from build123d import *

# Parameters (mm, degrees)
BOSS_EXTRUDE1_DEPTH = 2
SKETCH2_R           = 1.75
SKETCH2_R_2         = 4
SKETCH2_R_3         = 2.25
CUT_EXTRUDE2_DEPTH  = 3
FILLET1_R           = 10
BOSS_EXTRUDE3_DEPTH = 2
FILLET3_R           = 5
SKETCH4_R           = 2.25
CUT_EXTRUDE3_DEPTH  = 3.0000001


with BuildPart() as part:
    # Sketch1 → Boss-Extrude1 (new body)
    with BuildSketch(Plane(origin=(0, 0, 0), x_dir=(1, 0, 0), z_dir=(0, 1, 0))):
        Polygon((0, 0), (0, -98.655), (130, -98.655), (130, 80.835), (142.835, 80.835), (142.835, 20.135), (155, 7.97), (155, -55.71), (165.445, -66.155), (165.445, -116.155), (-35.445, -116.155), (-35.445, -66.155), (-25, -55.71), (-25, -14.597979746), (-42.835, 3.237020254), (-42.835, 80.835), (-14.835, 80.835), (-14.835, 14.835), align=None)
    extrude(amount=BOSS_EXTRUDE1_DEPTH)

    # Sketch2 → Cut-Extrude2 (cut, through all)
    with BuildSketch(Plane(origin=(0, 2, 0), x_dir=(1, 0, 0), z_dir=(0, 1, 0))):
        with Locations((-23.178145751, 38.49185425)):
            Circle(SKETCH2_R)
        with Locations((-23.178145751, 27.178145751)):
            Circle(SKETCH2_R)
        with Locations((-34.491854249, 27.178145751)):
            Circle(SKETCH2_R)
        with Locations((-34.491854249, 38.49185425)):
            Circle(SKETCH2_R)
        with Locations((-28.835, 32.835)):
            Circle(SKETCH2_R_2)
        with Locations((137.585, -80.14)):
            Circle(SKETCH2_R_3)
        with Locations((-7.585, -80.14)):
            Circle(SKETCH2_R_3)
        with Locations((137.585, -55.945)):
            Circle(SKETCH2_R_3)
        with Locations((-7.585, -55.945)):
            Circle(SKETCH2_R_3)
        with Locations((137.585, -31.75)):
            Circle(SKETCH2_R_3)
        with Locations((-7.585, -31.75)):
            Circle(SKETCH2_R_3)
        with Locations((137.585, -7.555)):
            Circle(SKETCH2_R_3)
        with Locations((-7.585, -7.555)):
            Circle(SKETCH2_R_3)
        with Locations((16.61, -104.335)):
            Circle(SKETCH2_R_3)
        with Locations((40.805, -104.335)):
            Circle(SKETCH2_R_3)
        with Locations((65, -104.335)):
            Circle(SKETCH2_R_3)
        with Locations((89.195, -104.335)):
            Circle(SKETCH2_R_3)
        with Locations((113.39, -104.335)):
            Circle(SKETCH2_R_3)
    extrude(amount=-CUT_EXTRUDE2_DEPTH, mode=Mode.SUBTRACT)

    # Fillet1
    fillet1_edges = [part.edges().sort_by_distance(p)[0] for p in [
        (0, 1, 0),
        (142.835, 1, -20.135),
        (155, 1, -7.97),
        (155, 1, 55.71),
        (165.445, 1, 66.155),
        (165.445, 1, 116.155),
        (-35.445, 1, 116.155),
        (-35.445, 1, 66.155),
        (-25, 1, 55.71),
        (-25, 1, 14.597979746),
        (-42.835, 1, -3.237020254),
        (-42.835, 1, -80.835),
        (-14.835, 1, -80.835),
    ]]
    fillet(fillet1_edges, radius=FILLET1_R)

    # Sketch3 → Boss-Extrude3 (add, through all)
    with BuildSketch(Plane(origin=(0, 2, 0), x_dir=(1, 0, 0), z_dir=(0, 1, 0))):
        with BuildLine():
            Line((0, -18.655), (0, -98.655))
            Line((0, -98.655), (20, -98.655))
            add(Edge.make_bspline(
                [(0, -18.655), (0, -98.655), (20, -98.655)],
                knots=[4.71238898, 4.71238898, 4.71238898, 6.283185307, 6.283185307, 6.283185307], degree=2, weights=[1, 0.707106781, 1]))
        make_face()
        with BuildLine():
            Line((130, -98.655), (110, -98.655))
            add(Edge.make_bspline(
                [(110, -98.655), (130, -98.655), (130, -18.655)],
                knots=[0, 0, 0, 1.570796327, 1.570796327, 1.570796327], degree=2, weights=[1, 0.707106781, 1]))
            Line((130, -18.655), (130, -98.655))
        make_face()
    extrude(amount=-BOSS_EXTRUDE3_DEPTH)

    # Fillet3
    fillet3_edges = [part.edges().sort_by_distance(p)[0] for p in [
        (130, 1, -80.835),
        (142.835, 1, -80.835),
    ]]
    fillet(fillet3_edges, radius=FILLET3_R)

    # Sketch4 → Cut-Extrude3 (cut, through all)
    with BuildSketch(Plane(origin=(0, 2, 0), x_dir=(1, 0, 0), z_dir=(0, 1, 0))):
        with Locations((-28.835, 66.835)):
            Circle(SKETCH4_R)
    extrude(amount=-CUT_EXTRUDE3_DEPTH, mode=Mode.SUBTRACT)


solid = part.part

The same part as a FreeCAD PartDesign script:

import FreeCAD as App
import Part
import Sketcher

V = App.Vector


def edges_at(feature, points):
    """Names of the edges that pass closest to the given points."""
    edges = feature.Shape.Edges
    near = lambda p: min(range(len(edges)), key=lambda i: edges[i].distToShape(Part.Vertex(*p))[0])
    return sorted({f"Edge{near(p) + 1}" for p in points})

doc = App.newDocument("Part")
body = doc.addObject("PartDesign::Body", "Body")

# Sketch on XZ plane
sketch1 = body.newObject("Sketcher::SketchObject", "Sketch")
sketch1.AttachmentSupport = (doc.getObject("XZ_Plane"), [""])
sketch1.MapMode = "FlatFace"
sketch1.addGeometry(Part.LineSegment(V(0, 98.655, 0), V(0, 0, 0)), False)
sketch1.addGeometry(Part.LineSegment(V(0, 0, 0), V(-14.835, -14.835, 0)), False)
sketch1.addGeometry(Part.LineSegment(V(-14.835, -14.835, 0), V(-14.835, -80.835, 0)), False)
sketch1.addGeometry(Part.LineSegment(V(-14.835, -80.835, 0), V(-42.835, -80.835, 0)), False)
sketch1.addGeometry(Part.LineSegment(V(-42.835, -80.835, 0), V(-42.835, -3.23702, 0)), False)
sketch1.addGeometry(Part.LineSegment(V(-42.835, -3.23702, 0), V(-25, 14.59798, 0)), False)
sketch1.addGeometry(Part.LineSegment(V(-25, 14.59798, 0), V(-25, 55.71, 0)), False)
sketch1.addGeometry(Part.LineSegment(V(-25, 55.71, 0), V(-35.445, 66.155, 0)), False)
sketch1.addGeometry(Part.LineSegment(V(-35.445, 66.155, 0), V(-35.445, 116.155, 0)), False)
sketch1.addGeometry(Part.LineSegment(V(-35.445, 116.155, 0), V(165.445, 116.155, 0)), False)
sketch1.addGeometry(Part.LineSegment(V(165.445, 116.155, 0), V(165.445, 66.155, 0)), False)
sketch1.addGeometry(Part.LineSegment(V(165.445, 66.155, 0), V(155, 55.71, 0)), False)
sketch1.addGeometry(Part.LineSegment(V(155, 55.71, 0), V(155, -7.97, 0)), False)
sketch1.addGeometry(Part.LineSegment(V(155, -7.97, 0), V(142.835, -20.135, 0)), False)
sketch1.addGeometry(Part.LineSegment(V(142.835, -20.135, 0), V(142.835, -80.835, 0)), False)
sketch1.addGeometry(Part.LineSegment(V(142.835, -80.835, 0), V(130, -80.835, 0)), False)
sketch1.addGeometry(Part.LineSegment(V(130, -80.835, 0), V(130, 98.655, 0)), False)
sketch1.addGeometry(Part.LineSegment(V(130, 98.655, 0), V(0, 98.655, 0)), False)
sketch1.addConstraint(Sketcher.Constraint("Coincident", 0, 2, 1, 1))
sketch1.addConstraint(Sketcher.Constraint("Coincident", 1, 2, 2, 1))
sketch1.addConstraint(Sketcher.Constraint("Coincident", 2, 2, 3, 1))
sketch1.addConstraint(Sketcher.Constraint("Coincident", 3, 2, 4, 1))
sketch1.addConstraint(Sketcher.Constraint("Coincident", 4, 2, 5, 1))
sketch1.addConstraint(Sketcher.Constraint("Coincident", 5, 2, 6, 1))
sketch1.addConstraint(Sketcher.Constraint("Coincident", 6, 2, 7, 1))
sketch1.addConstraint(Sketcher.Constraint("Coincident", 7, 2, 8, 1))
sketch1.addConstraint(Sketcher.Constraint("Coincident", 8, 2, 9, 1))
sketch1.addConstraint(Sketcher.Constraint("Coincident", 9, 2, 10, 1))
sketch1.addConstraint(Sketcher.Constraint("Coincident", 10, 2, 11, 1))
sketch1.addConstraint(Sketcher.Constraint("Coincident", 11, 2, 12, 1))
sketch1.addConstraint(Sketcher.Constraint("Coincident", 12, 2, 13, 1))
sketch1.addConstraint(Sketcher.Constraint("Coincident", 13, 2, 14, 1))
sketch1.addConstraint(Sketcher.Constraint("Coincident", 14, 2, 15, 1))
sketch1.addConstraint(Sketcher.Constraint("Coincident", 15, 2, 16, 1))
sketch1.addConstraint(Sketcher.Constraint("Coincident", 16, 2, 17, 1))
sketch1.addConstraint(Sketcher.Constraint("Coincident", 17, 2, 0, 1))
sketch1.addConstraint(Sketcher.Constraint("Vertical", 0))
sketch1.addConstraint(Sketcher.Constraint("Vertical", 2))
sketch1.addConstraint(Sketcher.Constraint("Horizontal", 3))
sketch1.addConstraint(Sketcher.Constraint("Vertical", 4))
sketch1.addConstraint(Sketcher.Constraint("Vertical", 6))
sketch1.addConstraint(Sketcher.Constraint("Vertical", 8))
sketch1.addConstraint(Sketcher.Constraint("Horizontal", 9))
sketch1.addConstraint(Sketcher.Constraint("Vertical", 10))
sketch1.addConstraint(Sketcher.Constraint("Vertical", 12))
sketch1.addConstraint(Sketcher.Constraint("Vertical", 14))
sketch1.addConstraint(Sketcher.Constraint("Horizontal", 15))
sketch1.addConstraint(Sketcher.Constraint("Vertical", 16))
sketch1.addConstraint(Sketcher.Constraint("Horizontal", 17))
sketch1.addConstraint(Sketcher.Constraint("Coincident", 0, 2, -1, 1))
sketch1.addConstraint(Sketcher.Constraint("Parallel", 1, 5))
sketch1.addConstraint(Sketcher.Constraint("Perpendicular", 5, 7))
sketch1.addConstraint(Sketcher.Constraint("Perpendicular", 7, 11))
sketch1.addConstraint(Sketcher.Constraint("Parallel", 11, 13))
sketch1.addConstraint(Sketcher.Constraint("Horizontal", 7, 2, 10, 2))
sketch1.addConstraint(Sketcher.Constraint("Horizontal", 6, 2, 11, 2))
sketch1.addConstraint(Sketcher.Constraint("Horizontal", 3, 2, 14, 2))
sketch1.addConstraint(Sketcher.Constraint("Equal", 7, 11))
sketch1.addConstraint(Sketcher.Constraint("DistanceX", 3, 2, 3, 1, 28.0))
sketch1.addConstraint(Sketcher.Constraint("DistanceX", 17, 2, 17, 1, 130.0))
sketch1.addConstraint(Sketcher.Constraint("DistanceY", 2, 2, 2, 1, 66.0))
sketch1.addConstraint(Sketcher.Constraint("DistanceY", 8, 1, 8, 2, 50.0))
sketch1.addConstraint(Sketcher.Constraint("DistanceY", 14, 2, 14, 1, 60.7))
sketch1.addConstraint(Sketcher.Constraint("DistanceX", 5, 2, -1, 1, 25.0))
sketch1.addConstraint(Sketcher.Constraint("DistanceX", -1, 1, 11, 2, 155.0))
sketch1.addConstraint(Sketcher.Constraint("DistanceX", 9, 1, 9, 2, 200.89))
sketch1.addConstraint(Sketcher.Constraint("DistanceY", 12, 2, 12, 1, 63.68))
sketch1.addConstraint(Sketcher.Constraint("DistanceY", 16, 1, 16, 2, 179.49))
sketch1.addConstraint(Sketcher.Constraint("DistanceY", 16, 2, 9, 2, 17.5))
sketch1.addConstraint(Sketcher.Constraint("DistanceY", 0, 2, 0, 1, 98.655))
sketch1.addConstraint(Sketcher.Constraint("DistanceY", 4, 1, 4, 2, 77.59798))
pad1 = body.newObject("PartDesign::Pad", "Pad")
pad1.Profile = sketch1
pad1.Length = 2
pad1.Reversed = True

# Sketch on XZ plane
sketch2 = body.newObject("Sketcher::SketchObject", "Sketch001")
sketch2.AttachmentSupport = (doc.getObject("XZ_Plane"), [""])
sketch2.MapMode = "FlatFace"
sketch2.AttachmentOffset = App.Placement(V(0, 0, -2), App.Rotation())
sketch2.addGeometry(Part.Circle(V(-23.178146, -38.491854, 0), V(0, 0, 1), 1.75), False)
sketch2.addGeometry(Part.Circle(V(-23.178146, -27.178146, 0), V(0, 0, 1), 1.75), False)
sketch2.addGeometry(Part.Circle(V(-34.491854, -27.178146, 0), V(0, 0, 1), 1.75), False)
sketch2.addGeometry(Part.Circle(V(-34.491854, -38.491854, 0), V(0, 0, 1), 1.75), False)
sketch2.addGeometry(Part.Circle(V(-28.835, -32.835, 0), V(0, 0, 1), 4), False)
sketch2.addGeometry(Part.Circle(V(137.585, 80.14, 0), V(0, 0, 1), 2.25), False)
sketch2.addGeometry(Part.Circle(V(-7.585, 80.14, 0), V(0, 0, 1), 2.25), False)
sketch2.addGeometry(Part.Circle(V(137.585, 55.945, 0), V(0, 0, 1), 2.25), False)
sketch2.addGeometry(Part.Circle(V(-7.585, 55.945, 0), V(0, 0, 1), 2.25), False)
sketch2.addGeometry(Part.Circle(V(137.585, 31.75, 0), V(0, 0, 1), 2.25), False)
sketch2.addGeometry(Part.Circle(V(-7.585, 31.75, 0), V(0, 0, 1), 2.25), False)
sketch2.addGeometry(Part.Circle(V(137.585, 7.555, 0), V(0, 0, 1), 2.25), False)
sketch2.addGeometry(Part.Circle(V(-7.585, 7.555, 0), V(0, 0, 1), 2.25), False)
sketch2.addGeometry(Part.Circle(V(16.61, 104.335, 0), V(0, 0, 1), 2.25), False)
sketch2.addGeometry(Part.Circle(V(40.805, 104.335, 0), V(0, 0, 1), 2.25), False)
sketch2.addGeometry(Part.Circle(V(65, 104.335, 0), V(0, 0, 1), 2.25), False)
sketch2.addGeometry(Part.Circle(V(89.195, 104.335, 0), V(0, 0, 1), 2.25), False)
sketch2.addGeometry(Part.Circle(V(113.39, 104.335, 0), V(0, 0, 1), 2.25), False)
sketch2.addConstraint(Sketcher.Constraint("Equal", 0, 1))
sketch2.addConstraint(Sketcher.Constraint("Equal", 1, 2))
sketch2.addConstraint(Sketcher.Constraint("Equal", 2, 3))
sketch2.addConstraint(Sketcher.Constraint("Equal", 5, 6))
sketch2.addConstraint(Sketcher.Constraint("Equal", 6, 7))
sketch2.addConstraint(Sketcher.Constraint("Equal", 7, 8))
sketch2.addConstraint(Sketcher.Constraint("Equal", 8, 9))
sketch2.addConstraint(Sketcher.Constraint("Equal", 9, 10))
sketch2.addConstraint(Sketcher.Constraint("Equal", 10, 11))
sketch2.addConstraint(Sketcher.Constraint("Equal", 11, 12))
sketch2.addConstraint(Sketcher.Constraint("Equal", 12, 13))
sketch2.addConstraint(Sketcher.Constraint("Equal", 13, 14))
sketch2.addConstraint(Sketcher.Constraint("Equal", 14, 15))
sketch2.addConstraint(Sketcher.Constraint("Equal", 15, 16))
sketch2.addConstraint(Sketcher.Constraint("Equal", 16, 17))
sketch2.addConstraint(Sketcher.Constraint("Horizontal", 1, 3, 2, 3))
sketch2.addConstraint(Sketcher.Constraint("Horizontal", 0, 3, 3, 3))
sketch2.addConstraint(Sketcher.Constraint("Horizontal", 5, 3, 6, 3))
sketch2.addConstraint(Sketcher.Constraint("Horizontal", 7, 3, 8, 3))
sketch2.addConstraint(Sketcher.Constraint("Horizontal", 9, 3, 10, 3))
sketch2.addConstraint(Sketcher.Constraint("Horizontal", 11, 3, 12, 3))
sketch2.addConstraint(Sketcher.Constraint("Horizontal", 13, 3, 14, 3))
sketch2.addConstraint(Sketcher.Constraint("Horizontal", 14, 3, 15, 3))
sketch2.addConstraint(Sketcher.Constraint("Horizontal", 15, 3, 16, 3))
sketch2.addConstraint(Sketcher.Constraint("Horizontal", 16, 3, 17, 3))
sketch2.addConstraint(Sketcher.Constraint("Vertical", 0, 3, 1, 3))
sketch2.addConstraint(Sketcher.Constraint("Vertical", 2, 3, 3, 3))
sketch2.addConstraint(Sketcher.Constraint("Vertical", 5, 3, 7, 3))
sketch2.addConstraint(Sketcher.Constraint("Vertical", 6, 3, 8, 3))
sketch2.addConstraint(Sketcher.Constraint("Vertical", 7, 3, 9, 3))
sketch2.addConstraint(Sketcher.Constraint("Vertical", 8, 3, 10, 3))
sketch2.addConstraint(Sketcher.Constraint("Vertical", 9, 3, 11, 3))
sketch2.addConstraint(Sketcher.Constraint("Vertical", 10, 3, 12, 3))
sketch2.addConstraint(Sketcher.Constraint("Diameter", 4, 8.0))
sketch2.addConstraint(Sketcher.Constraint("Diameter", 0, 3.5))
sketch2.addConstraint(Sketcher.Constraint("Diameter", 5, 4.5))
sketch2.addConstraint(Sketcher.Constraint("DistanceX", -1, 1, 15, 3, 65.0))
sketch2.addConstraint(Sketcher.Constraint("DistanceY", -1, 1, 5, 3, 80.14))
sketch2.addConstraint(Sketcher.Constraint("DistanceY", -1, 1, 9, 3, 31.75))
sketch2.addConstraint(Sketcher.Constraint("DistanceX", -1, 1, 13, 3, 16.61))
sketch2.addConstraint(Sketcher.Constraint("DistanceX", -1, 1, 17, 3, 113.39))
sketch2.addConstraint(Sketcher.Constraint("DistanceX", 4, 3, 5, 3, 166.42))
sketch2.addConstraint(Sketcher.Constraint("DistanceX", 4, 3, 6, 3, 21.25))
sketch2.addConstraint(Sketcher.Constraint("DistanceY", 4, 3, 7, 3, 88.78))
sketch2.addConstraint(Sketcher.Constraint("DistanceY", 11, 3, 7, 3, 48.39))
sketch2.addConstraint(Sketcher.Constraint("DistanceY", 8, 3, 13, 3, 48.39))
sketch2.addConstraint(Sketcher.Constraint("DistanceX", 6, 3, 14, 3, 48.39))
sketch2.addConstraint(Sketcher.Constraint("DistanceX", 14, 3, 16, 3, 48.39))
sketch2.addConstraint(Sketcher.Constraint("DistanceX", 4, 3, -1, 1, 28.835))
sketch2.addConstraint(Sketcher.Constraint("DistanceY", 4, 3, -1, 1, 32.835))
sketch2.addConstraint(Sketcher.Constraint("DistanceY", 0, 3, 1, 3, 11.313708))
sketch2.addConstraint(Sketcher.Constraint("DistanceX", 2, 3, 1, 3, 11.313708))
sketch2.addConstraint(Sketcher.Constraint("DistanceX", 0, 3, -1, 1, 23.178146))
sketch2.addConstraint(Sketcher.Constraint("DistanceY", 0, 3, -1, 1, 38.491854))
pocket1 = body.newObject("PartDesign::Pocket", "Pocket")
pocket1.Profile = sketch2
pocket1.Type = "ThroughAll"
pocket1.Reversed = True
doc.recompute()

fillet = body.newObject("PartDesign::Fillet", "Fillet")
fillet.Base = (pocket1, edges_at(pocket1, [
    (0, 1, 0),
    (142.835, 1, -20.135),
    (155, 1, -7.97),
    (155, 1, 55.71),
    (165.445, 1, 66.155),
    (165.445, 1, 116.155),
    (-35.445, 1, 116.155),
    (-35.445, 1, 66.155),
    (-25, 1, 55.71),
    (-25, 1, 14.598),
    (-42.835, 1, -3.237),
    (-42.835, 1, -80.835),
    (-14.835, 1, -80.835),
]))
fillet.Radius = 10

# Sketch on XZ plane
sketch3 = body.newObject("Sketcher::SketchObject", "Sketch002")
sketch3.AttachmentSupport = (doc.getObject("XZ_Plane"), [""])
sketch3.MapMode = "FlatFace"
sketch3.AttachmentOffset = App.Placement(V(0, 0, -2), App.Rotation())
sketch3.addGeometry(Part.LineSegment(V(0, 18.655, 0), V(0, 98.655, 0)), False)
sketch3.addGeometry(Part.LineSegment(V(0, 98.655, 0), V(20, 98.655, 0)), False)
sketch3.addGeometry(Part.BSplineCurve([V(0, 18.655, 0), V(0, 98.655, 0), V(20, 98.655, 0)], [3, 3], [4.71238898, 6.283185307], False, 2, [1, 0.707106781, 1], False), False)
sketch3.addGeometry(Part.LineSegment(V(110, 98.655, 0), V(130, 98.655, 0)), False)
sketch3.addGeometry(Part.LineSegment(V(130, 98.655, 0), V(130, 18.655, 0)), False)
sketch3.addGeometry(Part.BSplineCurve([V(110, 98.655, 0), V(130, 98.655, 0), V(130, 18.655, 0)], [3, 3], [0, 1.570796327], False, 2, [1, 0.707106781, 1], False), False)
sketch3.addConstraint(Sketcher.Constraint("Block", 2))
sketch3.addConstraint(Sketcher.Constraint("Block", 5))
sketch3.addConstraint(Sketcher.Constraint("Coincident", 0, 2, 1, 1))
sketch3.addConstraint(Sketcher.Constraint("Coincident", 1, 2, 2, 2))
sketch3.addConstraint(Sketcher.Constraint("Coincident", 2, 1, 0, 1))
sketch3.addConstraint(Sketcher.Constraint("Coincident", 3, 2, 4, 1))
sketch3.addConstraint(Sketcher.Constraint("Coincident", 4, 2, 5, 2))
sketch3.addConstraint(Sketcher.Constraint("Coincident", 5, 1, 3, 1))
sketch3.addConstraint(Sketcher.Constraint("Vertical", 0))
sketch3.addConstraint(Sketcher.Constraint("Horizontal", 1))
sketch3.addConstraint(Sketcher.Constraint("Horizontal", 3))
sketch3.addConstraint(Sketcher.Constraint("Vertical", 4))
pad2 = body.newObject("PartDesign::Pad", "Pad001")
pad2.Profile = sketch3
pad2.Length = 2
doc.recompute()

fillet2 = body.newObject("PartDesign::Fillet", "Fillet001")
fillet2.Base = (pad2, edges_at(pad2, [(130, 1, -80.835), (142.835, 1, -80.835)]))
fillet2.Radius = 5

# Sketch on XZ plane
sketch4 = body.newObject("Sketcher::SketchObject", "Sketch003")
sketch4.AttachmentSupport = (doc.getObject("XZ_Plane"), [""])
sketch4.MapMode = "FlatFace"
sketch4.AttachmentOffset = App.Placement(V(0, 0, -2), App.Rotation())
sketch4.addGeometry(Part.Circle(V(-28.835, -66.835, 0), V(0, 0, 1), 2.25), False)
sketch4.addConstraint(Sketcher.Constraint("Diameter", 0, 4.5))
sketch4.addConstraint(Sketcher.Constraint("DistanceX", 0, 3, -1, 1, 28.835))
sketch4.addConstraint(Sketcher.Constraint("DistanceY", 0, 3, -1, 1, 66.835))
pocket2 = body.newObject("PartDesign::Pocket", "Pocket001")
pocket2.Profile = sketch4
pocket2.Type = "ThroughAll"
pocket2.Reversed = True

doc.recompute()
